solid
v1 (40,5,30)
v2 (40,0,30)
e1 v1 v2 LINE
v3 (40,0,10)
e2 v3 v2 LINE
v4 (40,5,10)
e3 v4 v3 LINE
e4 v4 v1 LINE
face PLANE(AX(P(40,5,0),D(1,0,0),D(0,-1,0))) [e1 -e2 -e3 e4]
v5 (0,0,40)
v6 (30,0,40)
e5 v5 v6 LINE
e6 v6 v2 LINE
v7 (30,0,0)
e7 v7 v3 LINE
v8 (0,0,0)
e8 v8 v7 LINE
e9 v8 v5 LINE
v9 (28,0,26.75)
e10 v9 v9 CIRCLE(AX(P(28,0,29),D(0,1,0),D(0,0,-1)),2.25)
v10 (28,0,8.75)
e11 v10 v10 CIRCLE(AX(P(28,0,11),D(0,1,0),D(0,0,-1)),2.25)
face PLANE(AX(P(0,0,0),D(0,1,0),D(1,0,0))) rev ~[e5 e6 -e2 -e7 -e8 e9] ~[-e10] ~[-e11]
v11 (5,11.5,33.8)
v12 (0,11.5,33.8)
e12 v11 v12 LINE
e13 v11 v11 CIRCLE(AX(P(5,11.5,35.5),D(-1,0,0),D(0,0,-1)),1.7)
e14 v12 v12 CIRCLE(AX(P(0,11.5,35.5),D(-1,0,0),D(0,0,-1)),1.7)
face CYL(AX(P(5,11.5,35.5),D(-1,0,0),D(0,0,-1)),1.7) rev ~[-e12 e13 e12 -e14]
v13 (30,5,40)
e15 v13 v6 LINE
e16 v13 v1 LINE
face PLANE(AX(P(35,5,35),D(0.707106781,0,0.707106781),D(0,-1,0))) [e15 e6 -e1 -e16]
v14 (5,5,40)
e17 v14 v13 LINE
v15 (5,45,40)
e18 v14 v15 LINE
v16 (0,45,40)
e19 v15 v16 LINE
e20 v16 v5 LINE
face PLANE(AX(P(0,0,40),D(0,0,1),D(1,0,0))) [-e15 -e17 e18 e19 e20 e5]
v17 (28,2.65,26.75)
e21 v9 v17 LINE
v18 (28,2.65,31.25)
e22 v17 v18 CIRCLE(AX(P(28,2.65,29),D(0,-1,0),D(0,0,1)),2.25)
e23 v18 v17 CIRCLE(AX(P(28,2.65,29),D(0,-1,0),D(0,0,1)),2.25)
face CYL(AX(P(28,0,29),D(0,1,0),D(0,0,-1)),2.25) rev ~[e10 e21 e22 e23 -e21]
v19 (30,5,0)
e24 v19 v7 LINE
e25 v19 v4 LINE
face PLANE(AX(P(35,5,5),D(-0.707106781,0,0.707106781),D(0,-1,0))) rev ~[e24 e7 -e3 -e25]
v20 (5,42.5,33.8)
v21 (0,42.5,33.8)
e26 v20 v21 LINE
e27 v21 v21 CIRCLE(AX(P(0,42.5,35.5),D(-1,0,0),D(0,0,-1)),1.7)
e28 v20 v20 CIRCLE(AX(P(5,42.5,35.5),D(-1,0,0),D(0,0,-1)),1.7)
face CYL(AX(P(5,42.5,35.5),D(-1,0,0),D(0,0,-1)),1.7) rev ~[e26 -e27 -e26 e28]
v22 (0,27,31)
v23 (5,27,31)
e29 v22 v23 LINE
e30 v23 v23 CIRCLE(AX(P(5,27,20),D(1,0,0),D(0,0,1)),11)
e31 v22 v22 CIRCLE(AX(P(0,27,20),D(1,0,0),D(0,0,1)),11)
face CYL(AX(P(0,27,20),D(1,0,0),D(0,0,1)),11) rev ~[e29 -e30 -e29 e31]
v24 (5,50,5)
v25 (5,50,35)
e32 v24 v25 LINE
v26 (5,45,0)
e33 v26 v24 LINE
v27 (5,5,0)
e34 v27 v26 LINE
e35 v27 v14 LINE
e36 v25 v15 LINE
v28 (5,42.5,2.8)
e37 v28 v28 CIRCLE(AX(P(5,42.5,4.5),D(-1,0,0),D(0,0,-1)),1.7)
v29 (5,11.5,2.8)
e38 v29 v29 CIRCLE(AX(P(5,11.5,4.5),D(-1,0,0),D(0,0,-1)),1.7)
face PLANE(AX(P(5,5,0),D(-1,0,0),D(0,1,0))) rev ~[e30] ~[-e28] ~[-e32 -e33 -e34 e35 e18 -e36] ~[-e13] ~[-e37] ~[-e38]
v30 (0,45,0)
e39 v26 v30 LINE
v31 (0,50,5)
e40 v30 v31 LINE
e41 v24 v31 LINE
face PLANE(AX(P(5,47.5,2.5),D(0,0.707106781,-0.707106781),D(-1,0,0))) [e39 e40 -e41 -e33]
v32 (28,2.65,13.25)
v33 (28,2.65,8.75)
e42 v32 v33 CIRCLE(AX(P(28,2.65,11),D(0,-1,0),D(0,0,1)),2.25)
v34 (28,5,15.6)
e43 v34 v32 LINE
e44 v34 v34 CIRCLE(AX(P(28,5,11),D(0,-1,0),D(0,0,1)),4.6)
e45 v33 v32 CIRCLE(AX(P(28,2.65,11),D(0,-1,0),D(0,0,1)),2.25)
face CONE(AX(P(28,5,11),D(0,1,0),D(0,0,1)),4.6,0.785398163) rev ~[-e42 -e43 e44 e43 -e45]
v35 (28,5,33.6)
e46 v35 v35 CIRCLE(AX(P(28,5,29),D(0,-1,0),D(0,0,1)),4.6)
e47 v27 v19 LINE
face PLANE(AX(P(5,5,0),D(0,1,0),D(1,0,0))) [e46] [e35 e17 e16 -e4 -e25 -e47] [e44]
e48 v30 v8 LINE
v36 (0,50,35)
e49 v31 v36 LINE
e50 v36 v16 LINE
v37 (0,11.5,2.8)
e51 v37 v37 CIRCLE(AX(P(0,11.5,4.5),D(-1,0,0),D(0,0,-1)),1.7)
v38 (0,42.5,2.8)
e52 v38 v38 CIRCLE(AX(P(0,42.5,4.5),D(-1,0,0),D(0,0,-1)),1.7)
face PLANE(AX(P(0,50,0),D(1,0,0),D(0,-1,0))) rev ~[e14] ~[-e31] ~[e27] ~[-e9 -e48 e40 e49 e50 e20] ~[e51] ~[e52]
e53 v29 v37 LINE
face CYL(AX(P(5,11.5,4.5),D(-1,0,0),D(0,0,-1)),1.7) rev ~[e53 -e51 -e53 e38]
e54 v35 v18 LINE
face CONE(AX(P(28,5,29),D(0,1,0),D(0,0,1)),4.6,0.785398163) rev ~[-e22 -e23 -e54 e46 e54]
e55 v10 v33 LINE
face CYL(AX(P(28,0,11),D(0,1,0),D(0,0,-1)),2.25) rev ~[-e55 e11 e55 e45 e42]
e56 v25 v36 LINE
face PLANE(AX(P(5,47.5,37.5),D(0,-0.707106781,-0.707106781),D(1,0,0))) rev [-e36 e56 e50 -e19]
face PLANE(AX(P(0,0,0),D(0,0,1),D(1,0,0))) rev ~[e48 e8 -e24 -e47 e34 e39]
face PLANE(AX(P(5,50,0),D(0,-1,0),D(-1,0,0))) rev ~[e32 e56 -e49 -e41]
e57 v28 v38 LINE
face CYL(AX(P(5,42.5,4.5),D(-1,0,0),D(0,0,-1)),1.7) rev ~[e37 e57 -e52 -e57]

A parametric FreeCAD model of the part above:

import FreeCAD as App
import Part
import Sketcher
Q = App.Units.Quantity


def edges_at(feature, points):
    """Names of the edges that pass closest to the given points."""
    edges = feature.Shape.Edges
    near = lambda p: min(range(len(edges)), key=lambda i: edges[i].distToShape(Part.Vertex(*p))[0])
    return sorted({f"Edge{near(p) + 1}" for p in points})

doc = App.newDocument("Part")
body = doc.addObject("PartDesign::Body", "Body")

# Sketch on XY plane
sketch1 = body.newObject("Sketcher::SketchObject", "Sketch")
sketch1.AttachmentSupport = (doc.getObject("XY_Plane"), [""])
sketch1.MapMode = "FlatFace"
sketch1.addGeometry([
    Part.LineSegment(App.Vector(0, 50, 0), App.Vector(0, 0, 0)),  # 0
    Part.LineSegment(App.Vector(0, 0, 0), App.Vector(40, 0, 0)),  # 1
    Part.LineSegment(App.Vector(40, 0, 0), App.Vector(40, 5, 0)),  # 2
    Part.LineSegment(App.Vector(40, 5, 0), App.Vector(5, 5, 0)),  # 3
    Part.LineSegment(App.Vector(5, 5, 0), App.Vector(5, 50, 0)),  # 4
    Part.LineSegment(App.Vector(5, 50, 0), App.Vector(0, 50, 0)),  # 5
], False)
sketch1.addConstraint([
    Sketcher.Constraint("Coincident", 0, 2, 1, 1),
    Sketcher.Constraint("Coincident", 1, 2, 2, 1),
    Sketcher.Constraint("Coincident", 2, 2, 3, 1),
    Sketcher.Constraint("Coincident", 3, 2, 4, 1),
    Sketcher.Constraint("Coincident", 4, 2, 5, 1),
    Sketcher.Constraint("Coincident", 5, 2, 0, 1),
    Sketcher.Constraint("Vertical", 0),
    Sketcher.Constraint("Horizontal", 1),
    Sketcher.Constraint("Vertical", 2),
    Sketcher.Constraint("Horizontal", 3),
    Sketcher.Constraint("Vertical", 4),
    Sketcher.Constraint("Horizontal", 5),
    Sketcher.Constraint("Coincident", 0, 2, -1, 1),
    Sketcher.Constraint("Equal", 5, 2),
    Sketcher.Constraint("DistanceX", 1, 1, 1, 2, Q("40 mm")),
    Sketcher.Constraint("DistanceX", 5, 2, 5, 1, Q("5 mm")),
    Sketcher.Constraint("DistanceY", 0, 2, 0, 1, Q("50 mm")),
])
pad1 = body.newObject("PartDesign::Pad", "Pad")
pad1.Profile = sketch1
pad1.Length = 40

# Sketch on YZ plane
sketch2 = body.newObject("Sketcher::SketchObject", "Sketch001")
sketch2.AttachmentSupport = (doc.getObject("YZ_Plane"), [""])
sketch2.MapMode = "FlatFace"
sketch2.addGeometry(Part.Circle(App.Vector(27, 20, 0), App.Vector(0, 0, 1), 11), False)
sketch2.addConstraint([
    Sketcher.Constraint("Diameter", 0, Q("22 mm")),
    Sketcher.Constraint("DistanceX", -1, 1, 0, 3, Q("27 mm")),
    Sketcher.Constraint("DistanceY", -1, 1, 0, 3, Q("20 mm")),
])
doc.recompute()
hole = body.newObject("PartDesign::Hole", "Hole")
hole.Profile = sketch2
hole.ThreadType = "None"
hole.Diameter = 22
hole.DepthType = "ThroughAll"
hole.Reversed = True

# Sketch on XZ plane
sketch3 = body.newObject("Sketcher::SketchObject", "Sketch002")
sketch3.AttachmentSupport = (doc.getObject("XZ_Plane"), [""])
sketch3.MapMode = "FlatFace"
sketch3.addGeometry([
    Part.Circle(App.Vector(28, 29, 0), App.Vector(0, 0, 1), 2.2),
    Part.Circle(App.Vector(28, 11, 0), App.Vector(0, 0, 1), 2.2),
], False)
sketch3.addConstraint([
    Sketcher.Constraint("Equal", 0, 1),
    Sketcher.Constraint("Vertical", 0, 3, 1, 3),
    Sketcher.Constraint("Diameter", 0, Q("4.5 mm")),
    Sketcher.Constraint("DistanceX", -1, 1, 0, 3, Q("28 mm")),
    Sketcher.Constraint("DistanceY", -1, 1, 0, 3, Q("29 mm")),
    Sketcher.Constraint("DistanceY", -1, 1, 1, 3, Q("11 mm")),
])
doc.recompute()
hole2 = body.newObject("PartDesign::Hole", "Hole001")
hole2.Profile = sketch3
hole2.ThreadType = "None"
hole2.Diameter = 4.5
hole2.DepthType = "ThroughAll"

# Sketch on XZ plane
sketch4 = body.newObject("Sketcher::SketchObject", "Sketch003")
sketch4.AttachmentSupport = (doc.getObject("XZ_Plane"), [""])
sketch4.MapMode = "FlatFace"
sketch4.AttachmentOffset = App.Placement(App.Vector(0, 0, -5), App.Rotation())
sketch4.addGeometry(Part.Circle(App.Vector(28, 29, 0), App.Vector(0, 0, 1), 2.2), False)
sketch4.addConstraint([
    Sketcher.Constraint("Diameter", 0, Q("4.5 mm")),
    Sketcher.Constraint("DistanceX", -1, 1, 0, 3, Q("28 mm")),
    Sketcher.Constraint("DistanceY", -1, 1, 0, 3, Q("29 mm")),
])
doc.recompute()
hole3 = body.newObject("PartDesign::Hole", "Hole002")
hole3.Profile = sketch4
hole3.ThreadType = "None"
hole3.Diameter = 4.5
hole3.DepthType = "ThroughAll"
hole3.HoleCutType = "Countersink"
hole3.HoleCutDiameter = 9.2
hole3.HoleCutCountersinkAngle = 90
hole3.Reversed = True

# Sketch on XZ plane
sketch5 = body.newObject("Sketcher::SketchObject", "Sketch004")
sketch5.AttachmentSupport = (doc.getObject("XZ_Plane"), [""])
sketch5.MapMode = "FlatFace"
sketch5.AttachmentOffset = App.Placement(App.Vector(0, 0, -5), App.Rotation())
sketch5.addGeometry(Part.Circle(App.Vector(28, 11, 0), App.Vector(0, 0, 1), 2.2), False)
sketch5.addConstraint([
    Sketcher.Constraint("Diameter", 0, Q("4.5 mm")),
    Sketcher.Constraint("DistanceX", -1, 1, 0, 3, Q("28 mm")),
    Sketcher.Constraint("DistanceY", -1, 1, 0, 3, Q("11 mm")),
])
doc.recompute()
hole4 = body.newObject("PartDesign::Hole", "Hole003")
hole4.Profile = sketch5
hole4.ThreadType = "None"
hole4.Diameter = 4.5
hole4.DepthType = "ThroughAll"
hole4.HoleCutType = "Countersink"
hole4.HoleCutDiameter = 9.2
hole4.HoleCutCountersinkAngle = 90
hole4.Reversed = True
doc.recompute()

chamfer = body.newObject("PartDesign::Chamfer", "Chamfer")
chamfer.Base = (hole4, edges_at(hole4, [(40, 2.5, 0), (40, 2.5, 40)]))
chamfer.Size = 10

# Sketch on YZ plane
sketch6 = body.newObject("Sketcher::SketchObject", "Sketch005")
sketch6.AttachmentSupport = (doc.getObject("YZ_Plane"), [""])
sketch6.MapMode = "FlatFace"
sketch6.AttachmentOffset = App.Placement(App.Vector(0, 0, 5), App.Rotation())
sketch6.addGeometry([
    Part.Circle(App.Vector(42.5, 35.5, 0), App.Vector(0, 0, 1), 1.7),
    Part.Circle(App.Vector(42.5, 4.5, 0), App.Vector(0, 0, 1), 1.7),
    Part.Circle(App.Vector(11.5, 4.5, 0), App.Vector(0, 0, 1), 1.7),
    Part.Circle(App.Vector(11.5, 35.5, 0), App.Vector(0, 0, 1), 1.7),
], False)
sketch6.addConstraint([
    Sketcher.Constraint("Equal", 0, 1),
    Sketcher.Constraint("Equal", 1, 2),
    Sketcher.Constraint("Equal", 2, 3),
    Sketcher.Constraint("Horizontal", 1, 3, 2, 3),
    Sketcher.Constraint("Horizontal", 0, 3, 3, 3),
    Sketcher.Constraint("Vertical", 0, 3, 1, 3),
    Sketcher.Constraint("Vertical", 2, 3, 3, 3),
    Sketcher.Constraint("Diameter", 0, Q("3.4 mm")),
    Sketcher.Constraint("DistanceY", 1, 3, 0, 3, Q("31 mm")),
    Sketcher.Constraint("DistanceX", 2, 3, 1, 3, Q("31 mm")),
    Sketcher.Constraint("DistanceX", -1, 1, 0, 3, Q("42.5 mm")),
    Sketcher.Constraint("DistanceY", -1, 1, 0, 3, Q("35.5 mm")),
])
doc.recompute()
hole5 = body.newObject("PartDesign::Hole", "Hole004")
hole5.Profile = sketch6
hole5.ThreadType = "None"
hole5.Diameter = 3.4
hole5.DepthType = "ThroughAll"
doc.recompute()

chamfer2 = body.newObject("PartDesign::Chamfer", "Chamfer001")
chamfer2.Base = (hole5, edges_at(hole5, [(2.5, 50, 40), (2.5, 50, 0)]))
chamfer2.Size = 5

doc.recompute()
